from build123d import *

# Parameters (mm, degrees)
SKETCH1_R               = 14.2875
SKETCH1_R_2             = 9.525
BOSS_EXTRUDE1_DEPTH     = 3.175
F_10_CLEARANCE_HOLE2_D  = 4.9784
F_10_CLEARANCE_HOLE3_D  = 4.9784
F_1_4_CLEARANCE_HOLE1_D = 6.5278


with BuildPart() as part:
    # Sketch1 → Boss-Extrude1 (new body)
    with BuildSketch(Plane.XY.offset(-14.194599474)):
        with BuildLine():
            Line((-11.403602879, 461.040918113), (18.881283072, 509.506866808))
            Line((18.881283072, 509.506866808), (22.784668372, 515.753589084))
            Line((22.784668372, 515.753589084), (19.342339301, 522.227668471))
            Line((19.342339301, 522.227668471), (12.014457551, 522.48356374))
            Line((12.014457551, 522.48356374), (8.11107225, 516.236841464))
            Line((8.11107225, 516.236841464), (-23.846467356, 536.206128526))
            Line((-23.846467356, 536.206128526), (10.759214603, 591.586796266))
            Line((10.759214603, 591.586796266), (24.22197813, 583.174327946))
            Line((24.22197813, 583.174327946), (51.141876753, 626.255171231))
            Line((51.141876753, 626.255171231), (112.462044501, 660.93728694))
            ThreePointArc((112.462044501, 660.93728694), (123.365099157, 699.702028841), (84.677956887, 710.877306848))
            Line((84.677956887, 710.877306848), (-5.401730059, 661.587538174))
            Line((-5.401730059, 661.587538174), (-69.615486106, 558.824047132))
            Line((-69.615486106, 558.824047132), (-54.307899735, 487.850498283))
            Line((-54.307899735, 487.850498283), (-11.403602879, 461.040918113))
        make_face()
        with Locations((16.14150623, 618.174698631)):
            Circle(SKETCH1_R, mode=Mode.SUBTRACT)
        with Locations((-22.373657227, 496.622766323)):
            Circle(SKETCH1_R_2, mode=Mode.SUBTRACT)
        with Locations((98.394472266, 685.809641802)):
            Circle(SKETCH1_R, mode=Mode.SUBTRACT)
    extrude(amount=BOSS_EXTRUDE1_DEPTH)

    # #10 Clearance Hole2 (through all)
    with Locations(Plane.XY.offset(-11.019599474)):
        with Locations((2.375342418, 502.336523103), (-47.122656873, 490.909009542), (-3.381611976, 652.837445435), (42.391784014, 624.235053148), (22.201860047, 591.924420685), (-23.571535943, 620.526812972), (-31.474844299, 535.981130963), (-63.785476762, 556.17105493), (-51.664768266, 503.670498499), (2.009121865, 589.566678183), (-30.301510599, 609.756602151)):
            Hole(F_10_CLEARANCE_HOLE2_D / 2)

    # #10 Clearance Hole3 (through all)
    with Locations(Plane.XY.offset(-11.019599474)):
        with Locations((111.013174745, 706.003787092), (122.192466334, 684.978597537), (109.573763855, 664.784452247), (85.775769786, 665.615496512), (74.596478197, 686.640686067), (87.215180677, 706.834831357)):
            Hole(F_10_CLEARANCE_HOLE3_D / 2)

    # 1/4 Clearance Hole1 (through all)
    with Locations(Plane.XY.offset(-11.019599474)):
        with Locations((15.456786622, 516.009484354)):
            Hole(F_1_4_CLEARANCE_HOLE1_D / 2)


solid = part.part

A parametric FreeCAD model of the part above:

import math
import FreeCAD as App
import Part
import Sketcher
from FreeCAD import Vector
Q = App.Units.Quantity

doc = App.newDocument("Part")
body = doc.addObject("PartDesign::Body", "Body")

sketch1 = doc.addObject("Sketcher::SketchObject", "Sketch")
body.addObject(sketch1)
sketch1.AttachmentSupport = (doc.XY_Plane, [""])
sketch1.MapMode = "FlatFace"
sketch1.AttachmentOffset = App.Placement(Vector(0, 0, -14.194599), App.Rotation())
sketch1.addGeometry(Part.LineSegment(Vector(-11.403603, 461.040918, 0), Vector(18.881283, 509.506867, 0)), False)
sketch1.addGeometry(Part.LineSegment(Vector(18.881283, 509.506867, 0), Vector(22.784668, 515.753589, 0)), False)
sketch1.addGeometry(Part.LineSegment(Vector(22.784668, 515.753589, 0), Vector(19.342339, 522.227668, 0)), False)
sketch1.addGeometry(Part.LineSegment(Vector(19.342339, 522.227668, 0), Vector(12.014458, 522.483564, 0)), False)
sketch1.addGeometry(Part.LineSegment(Vector(12.014458, 522.483564, 0), Vector(8.111072, 516.236841, 0)), False)
sketch1.addGeometry(Part.LineSegment(Vector(8.111072, 516.236841, 0), Vector(-23.846467, 536.206129, 0)), False)
sketch1.addGeometry(Part.LineSegment(Vector(-23.846467, 536.206129, 0), Vector(10.759215, 591.586796, 0)), False)
sketch1.addGeometry(Part.LineSegment(Vector(10.759215, 591.586796, 0), Vector(24.221978, 583.174328, 0)), False)
sketch1.addGeometry(Part.LineSegment(Vector(24.221978, 583.174328, 0), Vector(51.141877, 626.255171, 0)), False)
sketch1.addGeometry(Part.LineSegment(Vector(51.141877, 626.255171, 0), Vector(112.462045, 660.937287, 0)), False)
sketch1.addGeometry(Part.ArcOfCircle(Part.Circle(Vector(98.394472, 685.809642, 0), Vector(0, 0, 1), 28.575), math.radians(-60.507904), math.radians(118.68658)), False)
sketch1.addGeometry(Part.LineSegment(Vector(84.677957, 710.877307, 0), Vector(-5.40173, 661.587538, 0)), False)
sketch1.addGeometry(Part.LineSegment(Vector(-5.40173, 661.587538, 0), Vector(-69.615486, 558.824047, 0)), False)
sketch1.addGeometry(Part.LineSegment(Vector(-69.615486, 558.824047, 0), Vector(-54.3079, 487.850498, 0)), False)
sketch1.addGeometry(Part.LineSegment(Vector(-54.3079, 487.850498, 0), Vector(-11.403603, 461.040918, 0)), False)
sketch1.addGeometry(Part.Circle(Vector(-22.373657, 496.622766, 0), Vector(0, 0, 1), 9.525), False)
sketch1.addGeometry(Part.Circle(Vector(16.141506, 618.174699, 0), Vector(0, 0, 1), 14.2875), False)
sketch1.addGeometry(Part.Circle(Vector(98.394472, 685.809642, 0), Vector(0, 0, 1), 14.2875), False)
sketch1.addConstraint(Sketcher.Constraint("Coincident", 0, 2, 1, 1))
sketch1.addConstraint(Sketcher.Constraint("Coincident", 1, 2, 2, 1))
sketch1.addConstraint(Sketcher.Constraint("Coincident", 2, 2, 3, 1))
sketch1.addConstraint(Sketcher.Constraint("Coincident", 3, 2, 4, 1))
sketch1.addConstraint(Sketcher.Constraint("Coincident", 4, 2, 5, 1))
sketch1.addConstraint(Sketcher.Constraint("Coincident", 5, 2, 6, 1))
sketch1.addConstraint(Sketcher.Constraint("Coincident", 6, 2, 7, 1))
sketch1.addConstraint(Sketcher.Constraint("Coincident", 7, 2, 8, 1))
sketch1.addConstraint(Sketcher.Constraint("Coincident", 8, 2, 9, 1))
sketch1.addConstraint(Sketcher.Constraint("Tangent", 9, 2, 10, 1))
sketch1.addConstraint(Sketcher.Constraint("Tangent", 10, 2, 11, 1))
sketch1.addConstraint(Sketcher.Constraint("Coincident", 11, 2, 12, 1))
sketch1.addConstraint(Sketcher.Constraint("Coincident", 12, 2, 13, 1))
sketch1.addConstraint(Sketcher.Constraint("Coincident", 13, 2, 14, 1))
sketch1.addConstraint(Sketcher.Constraint("Coincident", 14, 2, 0, 1))
sketch1.addConstraint(Sketcher.Constraint("Coincident", 17, 3, 10, 3))
sketch1.addConstraint(Sketcher.Constraint("Equal", 16, 17))
sketch1.addConstraint(Sketcher.Constraint("Parallel", 0, 1))
sketch1.addConstraint(Sketcher.Constraint("Parallel", 1, 4))
sketch1.addConstraint(Sketcher.Constraint("Perpendicular", 4, 5))
sketch1.addConstraint(Sketcher.Constraint("Perpendicular", 5, 6))
sketch1.addConstraint(Sketcher.Constraint("Perpendicular", 6, 7))
sketch1.addConstraint(Sketcher.Constraint("Perpendicular", 7, 8))
sketch1.addConstraint(Sketcher.Constraint("Parallel", 8, 12))
sketch1.addConstraint(Sketcher.Constraint("Perpendicular", 12, 14))
sketch1.addConstraint(Sketcher.Constraint("Equal", 2, 3))
sketch1.addConstraint(Sketcher.Constraint("Equal", 1, 4))
sketch1.addConstraint(Sketcher.Constraint("Diameter", 15, Q("0.75 in")))
sketch1.addConstraint(Sketcher.Constraint("Distance", 8, Q("2 in")))
sketch1.addConstraint(Sketcher.Constraint("Diameter", 16, Q("1.125 in")))
sketch1.addConstraint(Sketcher.Constraint("Angle", 0, Q("58 deg")))
sketch1.addConstraint(Sketcher.Constraint("Angle", 2, Q("118 deg")))
sketch1.addConstraint(Sketcher.Constraint("Angle", 3, Q("178 deg")))
sketch1.addConstraint(Sketcher.Constraint("Radius", 10, Q("1.125 in")))
sketch1.addConstraint(Sketcher.Constraint("Distance", 0, Q("2.25 in")))
sketch1.addConstraint(Sketcher.Constraint("Distance", 1, Q("0.29 in")))
sketch1.addConstraint(Sketcher.Constraint("Distance", 7, Q("0.625 in")))
sketch1.addConstraint(Sketcher.Constraint("DistanceY", 15, 3, 5, 2, Q("1.5584001 in")))
sketch1.addConstraint(Sketcher.Constraint("DistanceY", 3, 2, 7, 2, Q("2.3894002 in")))
sketch1.addConstraint(Sketcher.Constraint("DistanceY", -1, 1, 16, 3, 618.174699))
sketch1.addConstraint(Sketcher.Constraint("DistanceX", 13, 2, -1, 1, 54.3079))
sketch1.addConstraint(Sketcher.Constraint("DistanceY", -1, 1, 13, 2, 487.850498))
sketch1.addConstraint(Sketcher.Constraint("DistanceY", 15, 3, 0, 2, 12.8841))
sketch1.addConstraint(Sketcher.Constraint("DistanceY", 0, 2, 2, 2, 12.720802))
sketch1.addConstraint(Sketcher.Constraint("DistanceX", 12, 2, 6, 2, 80.374701))
sketch1.addConstraint(Sketcher.Constraint("Distance", 9, 70.448649))
sketch1.addConstraint(Sketcher.Constraint("Distance", 11, 102.68316))
sketch1.addConstraint(Sketcher.Constraint("Distance", 12, 121.176489))
sketch1.addConstraint(Sketcher.Constraint("Distance", 14, 50.59182))
sketch1.addConstraint(Sketcher.Constraint("DistanceY", -1, 1, 10, 3, 685.809642))
sketch1.addConstraint(Sketcher.Constraint("DistanceX", 15, 3, 10, 3, 120.768129))
sketch1.addConstraint(Sketcher.Constraint("DistanceX", 3, 2, 16, 3, 4.127049))
pad1 = doc.addObject("PartDesign::Pad", "Pad")
body.addObject(pad1)
pad1.Profile = sketch1
pad1.Length = Q("0.125 in")

sketch2 = doc.addObject("Sketcher::SketchObject", "Sketch001")
body.addObject(sketch2)
sketch2.AttachmentSupport = (doc.XY_Plane, [""])
sketch2.MapMode = "FlatFace"
sketch2.AttachmentOffset = App.Placement(Vector(0, 0, -11.019599), App.Rotation())
sketch2.addGeometry(Part.Circle(Vector(2.375342, 502.336523, 0), Vector(0, 0, 1), 2.4892), False)
sketch2.addGeometry(Part.Circle(Vector(-47.122657, 490.90901, 0), Vector(0, 0, 1), 2.4892), False)
sketch2.addGeometry(Part.Circle(Vector(-3.381612, 652.837445, 0), Vector(0, 0, 1), 2.4892), False)
sketch2.addGeometry(Part.Circle(Vector(42.391784, 624.235053, 0), Vector(0, 0, 1), 2.4892), False)
sketch2.addGeometry(Part.Circle(Vector(22.20186, 591.924421, 0), Vector(0, 0, 1), 2.4892), False)
sketch2.addGeometry(Part.Circle(Vector(-23.571536, 620.526813, 0), Vector(0, 0, 1), 2.4892), False)
sketch2.addGeometry(Part.Circle(Vector(-31.474844, 535.981131, 0), Vector(0, 0, 1), 2.4892), False)
sketch2.addGeometry(Part.Circle(Vector(-63.785477, 556.171055, 0), Vector(0, 0, 1), 2.4892), False)
sketch2.addGeometry(Part.Circle(Vector(-51.664768, 503.670498, 0), Vector(0, 0, 1), 2.4892), False)
sketch2.addGeometry(Part.Circle(Vector(2.009122, 589.566678, 0), Vector(0, 0, 1), 2.4892), False)
sketch2.addGeometry(Part.Circle(Vector(-30.301511, 609.756602, 0), Vector(0, 0, 1), 2.4892), False)
sketch2.addConstraint(Sketcher.Constraint("Equal", 0, 1))
sketch2.addConstraint(Sketcher.Constraint("Equal", 1, 2))
sketch2.addConstraint(Sketcher.Constraint("Equal", 2, 3))
sketch2.addConstraint(Sketcher.Constraint("Equal", 3, 4))
sketch2.addConstraint(Sketcher.Constraint("Equal", 4, 5))
sketch2.addConstraint(Sketcher.Constraint("Equal", 5, 6))
sketch2.addConstraint(Sketcher.Constraint("Equal", 6, 7))
sketch2.addConstraint(Sketcher.Constraint("Equal", 7, 8))
sketch2.addConstraint(Sketcher.Constraint("Equal", 8, 9))
sketch2.addConstraint(Sketcher.Constraint("Equal", 9, 10))
sketch2.addConstraint(Sketcher.Constraint("Diameter", 0, Q("0.196 in")))
sketch2.addConstraint(Sketcher.Constraint("DistanceY", -1, 1, 8, 3, 503.670498))
sketch2.addConstraint(Sketcher.Constraint("DistanceX", 1, 3, 0, 3, 49.497999))
sketch2.addConstraint(Sketcher.Constraint("DistanceX", 10, 3, 2, 3, 26.919899))
sketch2.addConstraint(Sketcher.Constraint("DistanceY", -1, 1, 1, 3, 490.90901))
sketch2.addConstraint(Sketcher.Constraint("DistanceX", 2, 3, -1, 1, 3.381612))
sketch2.addConstraint(Sketcher.Constraint("DistanceX", -1, 1, 4, 3, 22.20186))
sketch2.addConstraint(Sketcher.Constraint("DistanceY", -1, 1, 4, 3, 591.924421))
sketch2.addConstraint(Sketcher.Constraint("DistanceY", -1, 1, 6, 3, 535.981131))
sketch2.addConstraint(Sketcher.Constraint("DistanceX", 8, 3, -1, 1, 51.664768))
sketch2.addConstraint(Sketcher.Constraint("DistanceX", -1, 1, 9, 3, 2.009122))
sketch2.addConstraint(Sketcher.Constraint("DistanceY", -1, 1, 9, 3, 589.566678))
sketch2.addConstraint(Sketcher.Constraint("DistanceX", 0, 3, 3, 3, 40.016442))
sketch2.addConstraint(Sketcher.Constraint("DistanceY", 0, 3, 3, 3, 121.89853))
sketch2.addConstraint(Sketcher.Constraint("DistanceX", 5, 3, 3, 3, 65.96332))
sketch2.addConstraint(Sketcher.Constraint("DistanceY", 5, 3, 3, 3, 3.70824))
sketch2.addConstraint(Sketcher.Constraint("DistanceX", 6, 3, 5, 3, 7.903308))
sketch2.addConstraint(Sketcher.Constraint("DistanceX", 7, 3, 1, 3, 16.66282))
sketch2.addConstraint(Sketcher.Constraint("DistanceY", 7, 3, 5, 3, 64.355758))
sketch2.addConstraint(Sketcher.Constraint("DistanceX", 8, 3, 1, 3, 4.542111))
sketch2.addConstraint(Sketcher.Constraint("DistanceY", 10, 3, 5, 3, 10.770211))
sketch2.addConstraint(Sketcher.Constraint("DistanceY", 4, 3, 10, 3, 17.832181))
sketch2.addConstraint(Sketcher.Constraint("DistanceY", -1, 1, 2, 3, 652.837445))
doc.recompute()
hole = doc.addObject("PartDesign::Hole", "Hole")
body.addObject(hole)
hole.Profile = sketch2
hole.ThreadType = "None"
hole.Diameter = Q("0.196 in")
hole.DepthType = "ThroughAll"

sketch3 = doc.addObject("Sketcher::SketchObject", "Sketch002")
body.addObject(sketch3)
sketch3.AttachmentSupport = (doc.XY_Plane, [""])
sketch3.MapMode = "FlatFace"
sketch3.AttachmentOffset = App.Placement(Vector(0, 0, -11.019599), App.Rotation())
sketch3.addGeometry(Part.Circle(Vector(111.013175, 706.003787, 0), Vector(0, 0, 1), 2.4892), False)
sketch3.addGeometry(Part.Circle(Vector(122.192466, 684.978598, 0), Vector(0, 0, 1), 2.4892), False)
sketch3.addGeometry(Part.Circle(Vector(109.573764, 664.784452, 0), Vector(0, 0, 1), 2.4892), False)
sketch3.addGeometry(Part.Circle(Vector(85.77577, 665.615497, 0), Vector(0, 0, 1), 2.4892), False)
sketch3.addGeometry(Part.Circle(Vector(74.596478, 686.640686, 0), Vector(0, 0, 1), 2.4892), False)
sketch3.addGeometry(Part.Circle(Vector(87.215181, 706.834831, 0), Vector(0, 0, 1), 2.4892), False)
sketch3.addConstraint(Sketcher.Constraint("Equal", 0, 1))
sketch3.addConstraint(Sketcher.Constraint("Equal", 1, 2))
sketch3.addConstraint(Sketcher.Constraint("Equal", 2, 3))
sketch3.addConstraint(Sketcher.Constraint("Equal", 3, 4))
sketch3.addConstraint(Sketcher.Constraint("Equal", 4, 5))
sketch3.addConstraint(Sketcher.Constraint("Diameter", 0, Q("0.196 in")))
sketch3.addConstraint(Sketcher.Constraint("DistanceY", 3, 3, 1, 3, 19.363101))
sketch3.addConstraint(Sketcher.Constraint("DistanceY", 4, 3, 0, 3, 19.363101))
sketch3.addConstraint(Sketcher.Constraint("DistanceX", -1, 1, 3, 3, 85.77577))
sketch3.addConstraint(Sketcher.Constraint("DistanceX", -1, 1, 4, 3, 74.596478))
sketch3.addConstraint(Sketcher.Constraint("DistanceX", -1, 1, 5, 3, 87.215181))
sketch3.addConstraint(Sketcher.Constraint("DistanceY", -1, 1, 5, 3, 706.834831))
sketch3.addConstraint(Sketcher.Constraint("DistanceX", 0, 3, 1, 3, 11.179292))
sketch3.addConstraint(Sketcher.Constraint("DistanceY", 1, 3, 0, 3, 21.02519))
sketch3.addConstraint(Sketcher.Constraint("DistanceX", 2, 3, 0, 3, 1.439411))
sketch3.addConstraint(Sketcher.Constraint("DistanceX", 4, 3, 1, 3, 47.595988))
sketch3.addConstraint(Sketcher.Constraint("DistanceY", 2, 3, 5, 3, 42.050379))
sketch3.addConstraint(Sketcher.Constraint("DistanceY", -1, 1, 0, 3, 706.003787))
doc.recompute()
hole2 = doc.addObject("PartDesign::Hole", "Hole001")
body.addObject(hole2)
hole2.Profile = sketch3
hole2.ThreadType = "None"
hole2.Diameter = Q("0.196 in")
hole2.DepthType = "ThroughAll"

sketch4 = doc.addObject("Sketcher::SketchObject", "Sketch003")
body.addObject(sketch4)
sketch4.AttachmentSupport = (doc.XY_Plane, [""])
sketch4.MapMode = "FlatFace"
sketch4.AttachmentOffset = App.Placement(Vector(0, 0, -11.019599), App.Rotation())
sketch4.addGeometry(Part.Circle(Vector(15.456787, 516.009484, 0), Vector(0, 0, 1), 3.2639), False)
sketch4.addConstraint(Sketcher.Constraint("Diameter", 0, Q("0.257 in")))
sketch4.addConstraint(Sketcher.Constraint("DistanceX", -1, 1, 0, 3, 15.456787))
sketch4.addConstraint(Sketcher.Constraint("DistanceY", -1, 1, 0, 3, 516.009484))
doc.recompute()
hole3 = doc.addObject("PartDesign::Hole", "Hole002")
body.addObject(hole3)
hole3.Profile = sketch4
hole3.ThreadType = "None"
hole3.Diameter = Q("0.257 in")
hole3.DepthType = "ThroughAll"

doc.recompute()
